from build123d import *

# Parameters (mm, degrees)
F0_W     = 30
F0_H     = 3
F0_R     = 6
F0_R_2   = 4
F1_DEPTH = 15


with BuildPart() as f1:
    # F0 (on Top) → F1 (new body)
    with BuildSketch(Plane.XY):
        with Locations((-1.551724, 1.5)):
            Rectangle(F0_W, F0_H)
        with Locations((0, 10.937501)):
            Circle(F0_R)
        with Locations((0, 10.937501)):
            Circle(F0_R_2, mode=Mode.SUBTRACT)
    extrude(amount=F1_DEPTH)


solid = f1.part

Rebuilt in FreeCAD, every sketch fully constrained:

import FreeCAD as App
import Part
import Sketcher
Q = App.Units.Quantity


def add_polygon(sketch, points):
    """Adds a closed chain of lines whose ends are joined by coincident constraints."""
    first, n = sketch.GeometryCount, len(points)
    for a, b in zip(points, points[1:] + points[:1]):
        sketch.addGeometry(Part.LineSegment(App.Vector(*a, 0), App.Vector(*b, 0)), False)
    for i in range(n):
        sketch.addConstraint(Sketcher.Constraint("Coincident", first + i, 2, first + (i + 1) % n, 1))

doc = App.newDocument("Part")
body = doc.addObject("PartDesign::Body", "Body")
body.AllowCompound = True

sketch1 = body.newObject("Sketcher::SketchObject", "Sketch")
sketch1.AttachmentSupport = (doc.getObject("XY_Plane"), [""])
sketch1.MapMode = "FlatFace"
add_polygon(sketch1, [(-16.6, 3), (-16.6, 0), (13.4, 0), (13.4, 3)])
sketch1.addGeometry(Part.Circle(App.Vector(0, 10.9, 0), App.Vector(0, 0, 1), 6), False)
sketch1.addGeometry(Part.Circle(App.Vector(0, 10.9, 0), App.Vector(0, 0, 1), 4), False)
sketch1.addConstraint([
    Sketcher.Constraint("Vertical", 0),
    Sketcher.Constraint("Horizontal", 1),
    Sketcher.Constraint("Vertical", 2),
    Sketcher.Constraint("Horizontal", 3),
    Sketcher.Constraint("Coincident", 5, 3, 4, 3),
    Sketcher.Constraint("PointOnObject", 4, 3, -2),
    Sketcher.Constraint("PointOnObject", 0, 2, -1),
    Sketcher.Constraint("Diameter", 4, Q("12 mm")),
    Sketcher.Constraint("Diameter", 5, Q("8 mm")),
    Sketcher.Constraint("DistanceX", 1, 1, 1, 2, Q("30 mm")),
    Sketcher.Constraint("DistanceY", 0, 2, 0, 1, Q("3 mm")),
    Sketcher.Constraint("DistanceY", -1, 1, 4, 3, Q("10.937501 mm")),
    Sketcher.Constraint("DistanceX", 0, 2, -1, 1, Q("16.551724 mm")),
])
pad1 = body.newObject("PartDesign::Pad", "Pad")
pad1.Profile = sketch1
pad1.Length = 15

doc.recompute()
